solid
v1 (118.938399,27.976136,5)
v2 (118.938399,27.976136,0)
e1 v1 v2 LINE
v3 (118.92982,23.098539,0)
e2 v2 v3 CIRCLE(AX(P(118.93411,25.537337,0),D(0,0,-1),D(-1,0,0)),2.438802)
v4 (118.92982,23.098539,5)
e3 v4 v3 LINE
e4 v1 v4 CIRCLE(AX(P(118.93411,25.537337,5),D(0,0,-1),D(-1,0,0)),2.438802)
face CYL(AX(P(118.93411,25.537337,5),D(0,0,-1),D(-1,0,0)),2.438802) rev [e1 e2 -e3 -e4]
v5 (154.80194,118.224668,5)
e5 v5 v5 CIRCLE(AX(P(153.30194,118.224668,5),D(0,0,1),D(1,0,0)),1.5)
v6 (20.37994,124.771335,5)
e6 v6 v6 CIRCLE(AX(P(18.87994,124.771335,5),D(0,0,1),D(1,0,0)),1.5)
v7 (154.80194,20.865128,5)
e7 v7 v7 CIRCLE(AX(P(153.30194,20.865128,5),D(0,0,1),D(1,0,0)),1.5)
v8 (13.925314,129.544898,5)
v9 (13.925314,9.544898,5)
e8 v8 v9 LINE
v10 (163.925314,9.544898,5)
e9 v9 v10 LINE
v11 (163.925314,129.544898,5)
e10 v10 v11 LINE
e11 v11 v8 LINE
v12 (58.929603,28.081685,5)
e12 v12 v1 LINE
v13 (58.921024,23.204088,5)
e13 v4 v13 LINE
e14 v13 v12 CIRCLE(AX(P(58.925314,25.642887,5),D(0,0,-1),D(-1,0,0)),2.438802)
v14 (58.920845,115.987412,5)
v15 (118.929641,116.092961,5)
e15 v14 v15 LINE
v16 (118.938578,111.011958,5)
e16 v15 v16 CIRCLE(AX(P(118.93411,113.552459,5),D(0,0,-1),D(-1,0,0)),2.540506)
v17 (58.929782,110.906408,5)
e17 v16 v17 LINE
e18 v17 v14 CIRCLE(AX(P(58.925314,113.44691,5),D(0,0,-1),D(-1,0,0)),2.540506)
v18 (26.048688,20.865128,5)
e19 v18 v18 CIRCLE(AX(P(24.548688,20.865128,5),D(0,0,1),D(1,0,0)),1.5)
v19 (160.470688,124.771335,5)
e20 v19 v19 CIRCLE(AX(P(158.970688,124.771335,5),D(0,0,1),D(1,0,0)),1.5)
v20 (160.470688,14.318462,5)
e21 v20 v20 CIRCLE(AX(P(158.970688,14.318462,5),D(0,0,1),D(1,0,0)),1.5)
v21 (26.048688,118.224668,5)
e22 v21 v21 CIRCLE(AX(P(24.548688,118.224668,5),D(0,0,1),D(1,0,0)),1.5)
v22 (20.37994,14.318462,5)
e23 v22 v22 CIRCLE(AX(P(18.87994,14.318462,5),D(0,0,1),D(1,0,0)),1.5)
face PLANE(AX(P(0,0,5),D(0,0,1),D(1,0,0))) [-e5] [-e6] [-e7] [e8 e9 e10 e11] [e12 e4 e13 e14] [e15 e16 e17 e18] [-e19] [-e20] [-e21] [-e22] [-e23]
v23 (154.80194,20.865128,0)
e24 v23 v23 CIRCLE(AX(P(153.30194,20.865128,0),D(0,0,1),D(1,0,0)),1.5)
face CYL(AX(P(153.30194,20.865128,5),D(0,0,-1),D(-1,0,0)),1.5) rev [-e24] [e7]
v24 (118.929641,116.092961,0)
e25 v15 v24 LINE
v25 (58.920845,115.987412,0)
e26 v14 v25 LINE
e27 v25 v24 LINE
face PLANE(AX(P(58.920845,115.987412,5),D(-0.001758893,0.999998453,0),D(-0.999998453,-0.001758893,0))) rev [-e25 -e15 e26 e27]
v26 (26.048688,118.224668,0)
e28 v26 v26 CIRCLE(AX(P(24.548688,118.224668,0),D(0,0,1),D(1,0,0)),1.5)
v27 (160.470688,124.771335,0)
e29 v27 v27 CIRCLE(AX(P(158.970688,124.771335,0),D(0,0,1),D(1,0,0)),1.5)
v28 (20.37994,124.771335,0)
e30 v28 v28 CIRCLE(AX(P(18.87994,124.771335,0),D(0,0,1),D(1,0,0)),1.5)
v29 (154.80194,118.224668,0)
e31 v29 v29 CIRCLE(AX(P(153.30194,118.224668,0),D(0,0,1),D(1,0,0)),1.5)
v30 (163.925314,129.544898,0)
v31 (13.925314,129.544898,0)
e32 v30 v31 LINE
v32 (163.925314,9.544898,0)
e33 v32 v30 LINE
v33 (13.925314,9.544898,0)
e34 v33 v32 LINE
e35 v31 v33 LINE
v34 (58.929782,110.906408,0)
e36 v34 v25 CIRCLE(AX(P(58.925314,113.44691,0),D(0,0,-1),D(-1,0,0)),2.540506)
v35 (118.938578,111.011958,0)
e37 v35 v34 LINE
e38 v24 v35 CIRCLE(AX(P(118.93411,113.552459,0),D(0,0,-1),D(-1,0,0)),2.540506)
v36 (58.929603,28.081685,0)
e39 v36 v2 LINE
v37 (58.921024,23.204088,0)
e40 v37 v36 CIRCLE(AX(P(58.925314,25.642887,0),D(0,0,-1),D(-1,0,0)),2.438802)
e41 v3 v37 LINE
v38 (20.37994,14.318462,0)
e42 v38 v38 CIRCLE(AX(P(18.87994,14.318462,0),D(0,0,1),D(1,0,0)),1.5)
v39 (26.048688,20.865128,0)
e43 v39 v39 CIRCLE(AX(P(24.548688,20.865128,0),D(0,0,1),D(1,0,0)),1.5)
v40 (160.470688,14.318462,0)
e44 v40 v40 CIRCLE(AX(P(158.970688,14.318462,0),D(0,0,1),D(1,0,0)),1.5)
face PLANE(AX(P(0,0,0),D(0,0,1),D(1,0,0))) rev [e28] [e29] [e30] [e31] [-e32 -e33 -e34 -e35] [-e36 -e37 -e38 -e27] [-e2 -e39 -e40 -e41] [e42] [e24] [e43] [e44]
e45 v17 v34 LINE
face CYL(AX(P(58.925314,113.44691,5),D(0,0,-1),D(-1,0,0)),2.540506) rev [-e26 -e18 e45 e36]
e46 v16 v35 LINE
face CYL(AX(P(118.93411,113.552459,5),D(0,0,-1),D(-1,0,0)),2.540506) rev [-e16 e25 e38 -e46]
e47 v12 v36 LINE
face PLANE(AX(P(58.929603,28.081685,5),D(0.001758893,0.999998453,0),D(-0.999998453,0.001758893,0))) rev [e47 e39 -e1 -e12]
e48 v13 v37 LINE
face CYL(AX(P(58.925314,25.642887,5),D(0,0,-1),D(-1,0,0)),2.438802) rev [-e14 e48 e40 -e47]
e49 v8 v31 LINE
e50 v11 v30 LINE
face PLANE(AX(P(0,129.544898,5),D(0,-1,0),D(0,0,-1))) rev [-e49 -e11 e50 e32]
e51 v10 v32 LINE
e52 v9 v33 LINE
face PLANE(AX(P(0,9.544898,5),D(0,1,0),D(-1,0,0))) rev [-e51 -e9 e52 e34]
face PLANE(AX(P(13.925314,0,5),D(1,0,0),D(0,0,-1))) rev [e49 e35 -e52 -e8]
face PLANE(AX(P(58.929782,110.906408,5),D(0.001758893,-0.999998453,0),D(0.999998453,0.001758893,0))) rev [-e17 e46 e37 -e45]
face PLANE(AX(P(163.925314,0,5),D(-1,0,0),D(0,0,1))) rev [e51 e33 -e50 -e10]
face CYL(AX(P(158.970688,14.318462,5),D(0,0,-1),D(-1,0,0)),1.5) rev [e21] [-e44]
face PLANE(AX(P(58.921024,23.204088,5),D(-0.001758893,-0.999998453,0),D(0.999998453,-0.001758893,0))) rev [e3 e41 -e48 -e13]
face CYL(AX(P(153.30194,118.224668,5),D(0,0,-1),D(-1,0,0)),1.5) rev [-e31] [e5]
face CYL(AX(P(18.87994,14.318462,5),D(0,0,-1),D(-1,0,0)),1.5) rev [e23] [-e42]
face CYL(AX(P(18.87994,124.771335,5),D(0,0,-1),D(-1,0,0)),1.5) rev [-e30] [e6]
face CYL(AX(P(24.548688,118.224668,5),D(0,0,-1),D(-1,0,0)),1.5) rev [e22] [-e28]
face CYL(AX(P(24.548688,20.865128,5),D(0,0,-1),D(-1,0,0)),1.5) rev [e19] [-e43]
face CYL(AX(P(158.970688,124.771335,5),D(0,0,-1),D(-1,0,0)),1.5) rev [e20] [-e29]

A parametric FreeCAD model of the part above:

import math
import FreeCAD as App
import Part
import Sketcher


def add_polygon(sketch, points):
    """Adds a closed chain of lines whose ends are joined by coincident constraints."""
    first, n = sketch.GeometryCount, len(points)
    for a, b in zip(points, points[1:] + points[:1]):
        sketch.addGeometry(Part.LineSegment(App.Vector(*a, 0), App.Vector(*b, 0)), False)
    for i in range(n):
        sketch.addConstraint(Sketcher.Constraint("Coincident", first + i, 2, first + (i + 1) % n, 1))

doc = App.newDocument("Part")
params = doc.addObject("Spreadsheet::Sheet", "Params")
for row, (alias, value) in enumerate([
    ("sketch1_diameter", "3 mm"),
    ("sketch1_width", "150 mm"),
    ("sketch1_height", "120 mm"),
    ("pad1_length", "5 mm"),
], start=1):
    params.set(f"A{row}", alias)
    params.set(f"B{row}", "=" + value)
    params.setAlias(f"B{row}", alias)

body = doc.addObject("PartDesign::Body", "Body")

# Sketch on XY plane
sketch1 = doc.addObject("Sketcher::SketchObject", "Sketch")
body.addObject(sketch1)
sketch1.AttachmentSupport = (doc.XY_Plane, [""])
sketch1.MapMode = "FlatFace"
add_polygon(sketch1, [(13.9, 129.5), (13.9, 9.5), (163.9, 9.5), (163.9, 129.5)])  # lines 0-3
sketch1.addGeometry(Part.Circle(App.Vector(18.9, 14.3, 0), App.Vector(0, 0, 1), 1.5), False)  # 4
sketch1.addGeometry(Part.Circle(App.Vector(24.5, 20.9, 0), App.Vector(0, 0, 1), 1.5), False)  # 5
sketch1.addGeometry(Part.Circle(App.Vector(159, 14.3, 0), App.Vector(0, 0, 1), 1.5), False)  # 6
sketch1.addGeometry(Part.Circle(App.Vector(153.3, 20.9, 0), App.Vector(0, 0, 1), 1.5), False)  # 7
sketch1.addGeometry(Part.Circle(App.Vector(24.5, 118.2, 0), App.Vector(0, 0, 1), 1.5), False)  # 8
sketch1.addGeometry(Part.Circle(App.Vector(18.9, 124.8, 0), App.Vector(0, 0, 1), 1.5), False)  # 9
sketch1.addGeometry(Part.Circle(App.Vector(153.3, 118.2, 0), App.Vector(0, 0, 1), 1.5), False)  # 10
sketch1.addGeometry(Part.Circle(App.Vector(159, 124.8, 0), App.Vector(0, 0, 1), 1.5), False)  # 11
sketch1.addConstraint(Sketcher.Constraint("Vertical", 0))
sketch1.addConstraint(Sketcher.Constraint("Horizontal", 1))
sketch1.addConstraint(Sketcher.Constraint("Vertical", 2))
sketch1.addConstraint(Sketcher.Constraint("Horizontal", 3))
sketch1.addConstraint(Sketcher.Constraint("Equal", 4, 5))
sketch1.addConstraint(Sketcher.Constraint("Equal", 5, 6))
sketch1.addConstraint(Sketcher.Constraint("Equal", 6, 7))
sketch1.addConstraint(Sketcher.Constraint("Equal", 7, 8))
sketch1.addConstraint(Sketcher.Constraint("Equal", 8, 9))
sketch1.addConstraint(Sketcher.Constraint("Equal", 9, 10))
sketch1.addConstraint(Sketcher.Constraint("Equal", 10, 11))
sketch1.addConstraint(Sketcher.Constraint("Horizontal", 4, 3, 6, 3))
sketch1.addConstraint(Sketcher.Constraint("Horizontal", 5, 3, 7, 3))
sketch1.addConstraint(Sketcher.Constraint("Horizontal", 8, 3, 10, 3))
sketch1.addConstraint(Sketcher.Constraint("Horizontal", 9, 3, 11, 3))
sketch1.addConstraint(Sketcher.Constraint("Vertical", 5, 3, 8, 3))
sketch1.addConstraint(Sketcher.Constraint("Vertical", 4, 3, 9, 3))
sketch1.addConstraint(Sketcher.Constraint("Vertical", 7, 3, 10, 3))
sketch1.addConstraint(Sketcher.Constraint("Vertical", 6, 3, 11, 3))
sketch1.addConstraint(Sketcher.Constraint("Diameter", 4, 3.0))
sketch1.addConstraint(Sketcher.Constraint("DistanceX", 1, 1, 1, 2, 150.0))
sketch1.addConstraint(Sketcher.Constraint("DistanceY", 0, 2, 0, 1, 120.0))
sketch1.addConstraint(Sketcher.Constraint("DistanceX", 5, 3, 6, 3, 134.422))
sketch1.addConstraint(Sketcher.Constraint("DistanceX", 4, 3, 7, 3, 134.422))
sketch1.addConstraint(Sketcher.Constraint("DistanceY", -1, 1, 0, 2, 9.544898))
sketch1.addConstraint(Sketcher.Constraint("DistanceX", -1, 1, 4, 3, 18.87994))
sketch1.addConstraint(Sketcher.Constraint("DistanceY", -1, 1, 4, 3, 14.318462))
sketch1.addConstraint(Sketcher.Constraint("DistanceY", -1, 1, 5, 3, 20.865128))
sketch1.addConstraint(Sketcher.Constraint("DistanceY", -1, 1, 8, 3, 118.224668))
sketch1.addConstraint(Sketcher.Constraint("DistanceX", 4, 3, 6, 3, 140.090748))
sketch1.addConstraint(Sketcher.Constraint("DistanceY", -1, 1, 9, 3, 124.771335))
sketch1.addConstraint(Sketcher.Constraint("DistanceX", -1, 1, 0, 2, 13.925314))
sketch1.setExpression("Constraints[23]", "Params.sketch1_diameter")
sketch1.setExpression("Constraints[24]", "Params.sketch1_width")
sketch1.setExpression("Constraints[25]", "Params.sketch1_height")
pad1 = doc.addObject("PartDesign::Pad", "Pad")
body.addObject(pad1)
pad1.Profile = sketch1
pad1.setExpression("Length", "Params.pad1_length")

# Sketch on XY plane
sketch2 = doc.addObject("Sketcher::SketchObject", "Sketch001")
body.addObject(sketch2)
sketch2.AttachmentSupport = (doc.XY_Plane, [""])
sketch2.MapMode = "FlatFace"
sketch2.addGeometry(Part.LineSegment(App.Vector(118.9, 111, 0), App.Vector(58.9, 110.9, 0)), False)
sketch2.addGeometry(Part.ArcOfCircle(Part.Circle(App.Vector(58.9, 113.4, 0), App.Vector(0, 0, 1), 2.5), math.radians(90), math.radians(270)), False)
sketch2.addGeometry(Part.LineSegment(App.Vector(58.9, 116, 0), App.Vector(118.9, 116.1, 0)), False)
sketch2.addGeometry(Part.ArcOfCircle(Part.Circle(App.Vector(118.9, 113.6, 0), App.Vector(0, 0, 1), 2.5), math.radians(-90), math.radians(90)), False)
sketch2.addGeometry(Part.LineSegment(App.Vector(118.9, 23.1, 0), App.Vector(58.9, 23.2, 0)), False)
sketch2.addGeometry(Part.ArcOfCircle(Part.Circle(App.Vector(58.9, 25.6, 0), App.Vector(0, 0, 1), 2.4), math.radians(90), math.radians(270)), False)
sketch2.addGeometry(Part.LineSegment(App.Vector(58.9, 28.1, 0), App.Vector(118.9, 28, 0)), False)
sketch2.addGeometry(Part.ArcOfCircle(Part.Circle(App.Vector(118.9, 25.5, 0), App.Vector(0, 0, 1), 2.4), math.radians(-90), math.radians(90)), False)
sketch2.addConstraint(Sketcher.Constraint("Tangent", 0, 2, 1, 2))
sketch2.addConstraint(Sketcher.Constraint("Tangent", 1, 1, 2, 1))
sketch2.addConstraint(Sketcher.Constraint("Tangent", 2, 2, 3, 2))
sketch2.addConstraint(Sketcher.Constraint("Tangent", 3, 1, 0, 1))
sketch2.addConstraint(Sketcher.Constraint("Tangent", 4, 2, 5, 2))
sketch2.addConstraint(Sketcher.Constraint("Tangent", 5, 1, 6, 1))
sketch2.addConstraint(Sketcher.Constraint("Tangent", 6, 2, 7, 2))
sketch2.addConstraint(Sketcher.Constraint("Tangent", 7, 1, 4, 1))
sketch2.addConstraint(Sketcher.Constraint("Equal", 1, 3))
sketch2.addConstraint(Sketcher.Constraint("Equal", 5, 7))
sketch2.addConstraint(Sketcher.Constraint("Vertical", 1, 3, 5, 3))
sketch2.addConstraint(Sketcher.Constraint("Vertical", 3, 3, 7, 3))
sketch2.addConstraint(Sketcher.Constraint("Radius", 1, 2.540506))
sketch2.addConstraint(Sketcher.Constraint("Radius", 5, 2.438802))
sketch2.addConstraint(Sketcher.Constraint("DistanceX", -1, 1, 6, 2, 118.938399))
sketch2.addConstraint(Sketcher.Constraint("Distance", 0, 60.008889))
sketch2.addConstraint(Sketcher.Constraint("DistanceY", -1, 1, 1, 3, 113.44691))
sketch2.addConstraint(Sketcher.Constraint("DistanceX", -1, 1, 3, 3, 118.93411))
sketch2.addConstraint(Sketcher.Constraint("DistanceY", -1, 1, 3, 3, 113.552459))
sketch2.addConstraint(Sketcher.Constraint("DistanceY", -1, 1, 4, 2, 23.204088))
pocket1 = doc.addObject("PartDesign::Pocket", "Pocket")
body.addObject(pocket1)
pocket1.Profile = sketch2
pocket1.Type = "ThroughAll"
pocket1.Reversed = True

doc.recompute()
